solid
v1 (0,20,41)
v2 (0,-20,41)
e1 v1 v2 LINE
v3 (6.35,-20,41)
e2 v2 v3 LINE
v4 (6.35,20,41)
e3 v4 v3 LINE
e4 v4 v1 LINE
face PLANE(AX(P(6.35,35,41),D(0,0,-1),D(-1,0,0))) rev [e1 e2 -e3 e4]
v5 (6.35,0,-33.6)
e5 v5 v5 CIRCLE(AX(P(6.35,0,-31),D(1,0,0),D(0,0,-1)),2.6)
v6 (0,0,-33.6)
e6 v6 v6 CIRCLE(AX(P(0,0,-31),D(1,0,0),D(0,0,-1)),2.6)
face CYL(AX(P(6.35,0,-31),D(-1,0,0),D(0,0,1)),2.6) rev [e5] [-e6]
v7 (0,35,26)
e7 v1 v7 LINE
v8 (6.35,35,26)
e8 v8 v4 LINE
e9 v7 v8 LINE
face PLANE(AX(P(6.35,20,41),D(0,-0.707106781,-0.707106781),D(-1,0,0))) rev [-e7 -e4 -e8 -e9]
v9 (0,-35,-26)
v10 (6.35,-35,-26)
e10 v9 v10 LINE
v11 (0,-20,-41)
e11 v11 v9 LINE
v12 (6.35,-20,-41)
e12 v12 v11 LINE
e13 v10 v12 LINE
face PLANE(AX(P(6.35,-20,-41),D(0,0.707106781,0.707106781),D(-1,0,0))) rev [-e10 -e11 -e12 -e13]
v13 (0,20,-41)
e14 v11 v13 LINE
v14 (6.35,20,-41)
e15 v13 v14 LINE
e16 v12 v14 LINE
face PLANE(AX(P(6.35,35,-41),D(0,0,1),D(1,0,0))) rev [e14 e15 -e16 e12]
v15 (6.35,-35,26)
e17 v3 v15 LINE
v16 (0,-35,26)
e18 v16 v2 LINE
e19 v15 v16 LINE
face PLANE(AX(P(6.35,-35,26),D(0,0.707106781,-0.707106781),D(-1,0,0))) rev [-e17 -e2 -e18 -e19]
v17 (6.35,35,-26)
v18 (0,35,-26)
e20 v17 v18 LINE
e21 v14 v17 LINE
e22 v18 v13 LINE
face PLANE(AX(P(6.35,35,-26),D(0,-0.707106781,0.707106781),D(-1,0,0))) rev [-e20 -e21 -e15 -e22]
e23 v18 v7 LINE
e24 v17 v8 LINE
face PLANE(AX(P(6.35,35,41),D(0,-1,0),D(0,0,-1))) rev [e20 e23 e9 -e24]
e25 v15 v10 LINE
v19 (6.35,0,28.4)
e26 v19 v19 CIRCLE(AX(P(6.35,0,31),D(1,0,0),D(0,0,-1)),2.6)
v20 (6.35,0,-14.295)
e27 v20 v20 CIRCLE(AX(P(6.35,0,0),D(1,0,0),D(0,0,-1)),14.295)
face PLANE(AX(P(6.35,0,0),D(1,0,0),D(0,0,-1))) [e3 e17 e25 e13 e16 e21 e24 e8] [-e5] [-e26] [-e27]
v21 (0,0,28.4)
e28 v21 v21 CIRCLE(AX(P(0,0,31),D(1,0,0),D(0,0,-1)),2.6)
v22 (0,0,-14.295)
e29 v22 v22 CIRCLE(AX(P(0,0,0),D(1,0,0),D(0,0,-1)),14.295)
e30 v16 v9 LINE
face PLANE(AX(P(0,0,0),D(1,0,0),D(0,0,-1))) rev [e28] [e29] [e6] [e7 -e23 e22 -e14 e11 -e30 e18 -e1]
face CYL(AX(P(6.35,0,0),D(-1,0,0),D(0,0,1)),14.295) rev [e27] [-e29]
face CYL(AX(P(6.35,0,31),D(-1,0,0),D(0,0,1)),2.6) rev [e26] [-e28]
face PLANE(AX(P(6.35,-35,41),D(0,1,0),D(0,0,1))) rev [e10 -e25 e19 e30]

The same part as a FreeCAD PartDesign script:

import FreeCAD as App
import Part
import Sketcher


def edges_at(feature, points):
    """Names of the edges that pass closest to the given points."""
    edges = feature.Shape.Edges
    near = lambda p: min(range(len(edges)), key=lambda i: edges[i].distToShape(Part.Vertex(*p))[0])
    return sorted({f"Edge{near(p) + 1}" for p in points})


def add_polygon(sketch, points):
    """Adds a closed chain of lines whose ends are joined by coincident constraints."""
    first, n = sketch.GeometryCount, len(points)
    for a, b in zip(points, points[1:] + points[:1]):
        sketch.addGeometry(Part.LineSegment(App.Vector(*a, 0), App.Vector(*b, 0)), False)
    for i in range(n):
        sketch.addConstraint(Sketcher.Constraint("Coincident", first + i, 2, first + (i + 1) % n, 1))

doc = App.newDocument("Part")
body = doc.addObject("PartDesign::Body", "Body")

sketch1 = body.newObject("Sketcher::SketchObject", "Sketch")
sketch1.AttachmentSupport = (doc.getObject("YZ_Plane"), [""])
sketch1.MapMode = "FlatFace"
add_polygon(sketch1, [(35, 41), (-35, 41), (-35, -41), (35, -41)])
sketch1.addGeometry(Part.Circle(App.Vector(0, 31, 0), App.Vector(0, 0, 1), 2.6), False)
sketch1.addGeometry(Part.Circle(App.Vector(0, 0, 0), App.Vector(0, 0, 1), 14.3), False)
sketch1.addGeometry(Part.Circle(App.Vector(0, -31, 0), App.Vector(0, 0, 1), 2.6), False)
sketch1.addConstraint(Sketcher.Constraint("Horizontal", 0))
sketch1.addConstraint(Sketcher.Constraint("Vertical", 1))
sketch1.addConstraint(Sketcher.Constraint("Horizontal", 2))
sketch1.addConstraint(Sketcher.Constraint("Vertical", 3))
sketch1.addConstraint(Sketcher.Constraint("Coincident", 5, 3, -1, 1))
sketch1.addConstraint(Sketcher.Constraint("Equal", 4, 6))
sketch1.addConstraint(Sketcher.Constraint("Symmetric", 4, 3, 6, 3, -1, 1))
sketch1.addConstraint(Sketcher.Constraint("Symmetric", 0, 2, 2, 2, -1, 1))
sketch1.addConstraint(Sketcher.Constraint("PointOnObject", 4, 3, -2))
sketch1.addConstraint(Sketcher.Constraint("Diameter", 4, 5.2))
sketch1.addConstraint(Sketcher.Constraint("Diameter", 5, 28.59))
sketch1.addConstraint(Sketcher.Constraint("DistanceX", 0, 2, 0, 1, 70.0))
sketch1.addConstraint(Sketcher.Constraint("DistanceY", 1, 2, 1, 1, 82.0))
sketch1.addConstraint(Sketcher.Constraint("DistanceY", -1, 1, 4, 3, 31.0))
pad1 = body.newObject("PartDesign::Pad", "Pad")
pad1.Profile = sketch1
pad1.Length = 6.35
doc.recompute()

chamfer = body.newObject("PartDesign::Chamfer", "Chamfer")
chamfer.Base = (pad1, edges_at(pad1, [
    (3.175, 35, 41),
    (3.175, 35, -41),
    (3.175, -35, -41),
    (3.175, -35, 41),
]))
chamfer.Size = 15

doc.recompute()
